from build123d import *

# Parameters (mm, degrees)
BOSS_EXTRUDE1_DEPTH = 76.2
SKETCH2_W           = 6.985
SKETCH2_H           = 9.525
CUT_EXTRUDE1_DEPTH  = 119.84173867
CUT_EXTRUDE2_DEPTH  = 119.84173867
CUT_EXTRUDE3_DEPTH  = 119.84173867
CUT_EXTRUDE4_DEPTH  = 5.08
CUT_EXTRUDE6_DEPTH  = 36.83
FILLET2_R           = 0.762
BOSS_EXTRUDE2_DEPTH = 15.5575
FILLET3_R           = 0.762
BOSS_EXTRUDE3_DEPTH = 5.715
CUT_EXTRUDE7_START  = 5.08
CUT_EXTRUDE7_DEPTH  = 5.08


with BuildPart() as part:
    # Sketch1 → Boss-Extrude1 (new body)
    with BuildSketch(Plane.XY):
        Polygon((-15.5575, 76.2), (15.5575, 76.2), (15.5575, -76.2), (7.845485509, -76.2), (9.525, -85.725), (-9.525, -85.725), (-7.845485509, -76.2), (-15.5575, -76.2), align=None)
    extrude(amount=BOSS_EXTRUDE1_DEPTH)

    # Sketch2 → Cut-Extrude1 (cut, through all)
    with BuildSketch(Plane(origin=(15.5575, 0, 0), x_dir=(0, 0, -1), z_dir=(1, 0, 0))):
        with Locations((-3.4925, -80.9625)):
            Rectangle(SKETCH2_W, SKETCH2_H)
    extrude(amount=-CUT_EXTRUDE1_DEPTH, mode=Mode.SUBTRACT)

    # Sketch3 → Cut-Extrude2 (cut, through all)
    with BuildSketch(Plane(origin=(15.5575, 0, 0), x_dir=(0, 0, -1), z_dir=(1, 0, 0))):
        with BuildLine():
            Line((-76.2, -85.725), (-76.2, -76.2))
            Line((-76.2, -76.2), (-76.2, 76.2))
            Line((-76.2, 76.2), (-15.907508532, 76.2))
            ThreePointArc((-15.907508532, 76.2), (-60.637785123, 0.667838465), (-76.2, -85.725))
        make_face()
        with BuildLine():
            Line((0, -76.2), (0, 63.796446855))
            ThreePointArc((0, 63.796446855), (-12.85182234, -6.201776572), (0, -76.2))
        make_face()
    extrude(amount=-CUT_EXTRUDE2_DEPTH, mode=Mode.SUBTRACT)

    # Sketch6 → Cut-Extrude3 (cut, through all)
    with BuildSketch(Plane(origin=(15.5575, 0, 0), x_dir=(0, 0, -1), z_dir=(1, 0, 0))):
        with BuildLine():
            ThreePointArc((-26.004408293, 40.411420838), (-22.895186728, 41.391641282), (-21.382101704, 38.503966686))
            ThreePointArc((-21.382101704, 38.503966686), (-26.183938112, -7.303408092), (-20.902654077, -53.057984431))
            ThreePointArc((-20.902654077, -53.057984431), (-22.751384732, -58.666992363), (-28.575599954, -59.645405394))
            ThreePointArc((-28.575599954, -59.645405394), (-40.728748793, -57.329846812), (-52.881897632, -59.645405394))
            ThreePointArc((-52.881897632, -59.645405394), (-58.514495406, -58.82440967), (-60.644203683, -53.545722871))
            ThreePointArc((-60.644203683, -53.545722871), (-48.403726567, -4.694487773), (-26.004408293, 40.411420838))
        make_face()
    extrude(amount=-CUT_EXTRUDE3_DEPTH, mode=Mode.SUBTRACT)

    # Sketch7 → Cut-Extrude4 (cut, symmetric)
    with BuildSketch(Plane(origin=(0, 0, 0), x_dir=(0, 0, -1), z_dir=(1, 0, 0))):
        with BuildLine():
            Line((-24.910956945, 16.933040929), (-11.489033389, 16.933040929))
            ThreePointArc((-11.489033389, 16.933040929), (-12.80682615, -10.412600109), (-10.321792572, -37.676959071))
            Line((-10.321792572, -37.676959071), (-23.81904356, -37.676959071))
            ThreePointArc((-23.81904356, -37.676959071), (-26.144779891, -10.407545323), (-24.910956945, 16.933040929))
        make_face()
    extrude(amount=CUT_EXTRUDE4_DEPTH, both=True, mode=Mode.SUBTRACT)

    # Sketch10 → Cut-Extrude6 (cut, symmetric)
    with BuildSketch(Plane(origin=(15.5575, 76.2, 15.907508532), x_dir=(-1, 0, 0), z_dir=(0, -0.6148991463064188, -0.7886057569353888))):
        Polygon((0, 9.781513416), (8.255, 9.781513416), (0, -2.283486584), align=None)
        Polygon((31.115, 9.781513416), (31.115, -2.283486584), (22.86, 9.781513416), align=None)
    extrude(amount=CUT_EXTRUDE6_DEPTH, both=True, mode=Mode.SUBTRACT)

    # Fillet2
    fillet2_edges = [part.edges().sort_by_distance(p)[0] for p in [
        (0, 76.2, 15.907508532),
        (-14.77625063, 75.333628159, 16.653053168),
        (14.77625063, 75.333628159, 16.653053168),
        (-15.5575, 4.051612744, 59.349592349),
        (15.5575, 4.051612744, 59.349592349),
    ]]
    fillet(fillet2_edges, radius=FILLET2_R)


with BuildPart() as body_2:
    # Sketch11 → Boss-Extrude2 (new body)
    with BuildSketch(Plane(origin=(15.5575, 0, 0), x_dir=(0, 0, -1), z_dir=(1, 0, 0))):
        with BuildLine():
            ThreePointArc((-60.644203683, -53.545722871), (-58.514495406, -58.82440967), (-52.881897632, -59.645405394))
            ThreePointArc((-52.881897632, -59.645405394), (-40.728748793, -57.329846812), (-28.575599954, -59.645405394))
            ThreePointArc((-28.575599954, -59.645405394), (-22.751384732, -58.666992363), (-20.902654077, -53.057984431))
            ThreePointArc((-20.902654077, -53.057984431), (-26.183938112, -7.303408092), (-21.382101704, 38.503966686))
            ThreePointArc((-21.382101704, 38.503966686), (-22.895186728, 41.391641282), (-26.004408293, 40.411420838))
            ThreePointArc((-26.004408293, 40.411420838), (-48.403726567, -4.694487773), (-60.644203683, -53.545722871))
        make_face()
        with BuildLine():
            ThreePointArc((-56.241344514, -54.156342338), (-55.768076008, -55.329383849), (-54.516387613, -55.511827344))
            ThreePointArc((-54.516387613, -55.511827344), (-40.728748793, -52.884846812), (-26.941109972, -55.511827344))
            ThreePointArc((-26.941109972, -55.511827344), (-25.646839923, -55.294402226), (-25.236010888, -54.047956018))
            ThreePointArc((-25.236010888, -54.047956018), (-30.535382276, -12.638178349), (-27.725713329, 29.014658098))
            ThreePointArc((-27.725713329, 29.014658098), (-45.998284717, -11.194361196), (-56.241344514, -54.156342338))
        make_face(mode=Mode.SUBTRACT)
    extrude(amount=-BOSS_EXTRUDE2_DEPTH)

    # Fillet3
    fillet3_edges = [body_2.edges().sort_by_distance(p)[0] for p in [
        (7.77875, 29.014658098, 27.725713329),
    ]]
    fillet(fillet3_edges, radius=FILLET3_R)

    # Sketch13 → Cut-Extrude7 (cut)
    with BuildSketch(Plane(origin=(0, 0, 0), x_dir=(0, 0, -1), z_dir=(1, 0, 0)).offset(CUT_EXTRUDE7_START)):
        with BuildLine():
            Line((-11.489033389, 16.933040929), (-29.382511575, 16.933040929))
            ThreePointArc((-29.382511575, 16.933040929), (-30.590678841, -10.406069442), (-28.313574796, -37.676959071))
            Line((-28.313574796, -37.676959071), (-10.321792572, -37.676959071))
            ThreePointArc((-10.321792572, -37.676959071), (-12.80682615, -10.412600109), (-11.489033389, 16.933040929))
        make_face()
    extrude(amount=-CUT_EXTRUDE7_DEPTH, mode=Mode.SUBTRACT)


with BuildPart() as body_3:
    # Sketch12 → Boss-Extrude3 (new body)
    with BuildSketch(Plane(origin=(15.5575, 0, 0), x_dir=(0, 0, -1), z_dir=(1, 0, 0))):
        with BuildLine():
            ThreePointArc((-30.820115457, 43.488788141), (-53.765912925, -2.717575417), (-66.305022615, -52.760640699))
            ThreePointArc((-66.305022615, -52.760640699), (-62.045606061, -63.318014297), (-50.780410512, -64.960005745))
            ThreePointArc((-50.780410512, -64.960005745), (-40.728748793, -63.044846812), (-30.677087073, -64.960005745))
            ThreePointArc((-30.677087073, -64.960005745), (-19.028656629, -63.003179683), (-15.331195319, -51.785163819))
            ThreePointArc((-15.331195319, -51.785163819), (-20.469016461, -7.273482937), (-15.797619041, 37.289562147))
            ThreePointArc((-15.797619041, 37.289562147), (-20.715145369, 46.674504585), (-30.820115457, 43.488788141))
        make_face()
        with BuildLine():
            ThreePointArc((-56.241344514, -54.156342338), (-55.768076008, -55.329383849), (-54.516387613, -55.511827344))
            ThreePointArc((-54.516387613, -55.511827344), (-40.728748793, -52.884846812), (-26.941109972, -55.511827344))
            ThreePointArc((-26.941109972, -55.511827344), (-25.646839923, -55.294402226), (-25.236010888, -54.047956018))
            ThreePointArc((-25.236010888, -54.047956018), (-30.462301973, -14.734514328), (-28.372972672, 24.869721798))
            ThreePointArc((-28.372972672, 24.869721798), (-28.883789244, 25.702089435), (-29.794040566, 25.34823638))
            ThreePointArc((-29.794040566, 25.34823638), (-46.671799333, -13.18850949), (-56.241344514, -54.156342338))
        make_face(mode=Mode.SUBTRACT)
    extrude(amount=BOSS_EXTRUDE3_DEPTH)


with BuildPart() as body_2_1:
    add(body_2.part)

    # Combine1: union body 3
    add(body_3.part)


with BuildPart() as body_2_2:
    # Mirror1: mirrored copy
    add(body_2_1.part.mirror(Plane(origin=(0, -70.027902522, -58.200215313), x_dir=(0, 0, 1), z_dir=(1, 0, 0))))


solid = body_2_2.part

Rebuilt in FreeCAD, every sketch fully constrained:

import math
import FreeCAD as App
import Part
import Sketcher
Q = App.Units.Quantity


def edges_at(feature, points):
    """Names of the edges that pass closest to the given points."""
    edges = feature.Shape.Edges
    near = lambda p: min(range(len(edges)), key=lambda i: edges[i].distToShape(Part.Vertex(*p))[0])
    return sorted({f"Edge{near(p) + 1}" for p in points})


def add_polygon(sketch, points):
    """Adds a closed chain of lines whose ends are joined by coincident constraints."""
    first, n = sketch.GeometryCount, len(points)
    for a, b in zip(points, points[1:] + points[:1]):
        sketch.addGeometry(Part.LineSegment(App.Vector(*a, 0), App.Vector(*b, 0)), False)
    for i in range(n):
        sketch.addConstraint(Sketcher.Constraint("Coincident", first + i, 2, first + (i + 1) % n, 1))

doc = App.newDocument("Part")
params = doc.addObject("Spreadsheet::Sheet", "Params")
for row, (alias, value) in enumerate([
    ("sketch1_height", "6 in"),
    ("sketch1_width", "0.75 in"),
    ("sketch1_width2", "1.225 in"),
    ("pad1_length", "3 in"),
    ("sketch2_width", "0.375 in"),
    ("sketch2_height", "0.275 in"),
    ("sketch3_width", "6.375 in"),
    ("sketch4_radius", "0.1 in"),
    ("sketch4_radius2", "0.225 in"),
    ("pocket4_length", "0.4 in"),
    ("sketch6_width", "0.325 in"),
    ("sketch6_height", "0.475 in"),
    ("pocket5_length", "2.9 in"),
    ("fillet_radius", "0.03 in"),
    ("sketch7_radius", "0.1 in"),
    ("sketch7_radius2", "0.05 in"),
    ("sketch7_radius3", "0.225 in"),
    ("pad2_length", "0.6125 in"),
    ("fillet2_radius", "0.03 in"),
    ("pocket6_length", "0.2 in"),
    ("sketch9_radius", "0.45 in"),
    ("sketch9_radius2", "0.05 in"),
    ("sketch9_radius3", "0.03 in"),
    ("sketch9_radius4", "0.325 in"),
    ("pad3_length", "0.225 in"),
], start=1):
    params.set(f"A{row}", alias)
    params.set(f"B{row}", "=" + value)
    params.setAlias(f"B{row}", alias)

body = doc.addObject("PartDesign::Body", "Body")

# Sketch on XY plane
sketch1 = doc.addObject("Sketcher::SketchObject", "Sketch")
body.addObject(sketch1)
sketch1.AttachmentSupport = (doc.XY_Plane, [""])
sketch1.MapMode = "FlatFace"
add_polygon(sketch1, [(15.5575, 76.2), (-15.5575, 76.2), (-15.5575, -76.2), (-7.845486, -76.2), (-9.525, -85.725), (9.525, -85.725), (7.845486, -76.2), (15.5575, -76.2)])  # lines 0-7
sketch1.addConstraint(Sketcher.Constraint("Horizontal", 0))
sketch1.addConstraint(Sketcher.Constraint("Vertical", 1))
sketch1.addConstraint(Sketcher.Constraint("Horizontal", 2))
sketch1.addConstraint(Sketcher.Constraint("Horizontal", 4))
sketch1.addConstraint(Sketcher.Constraint("Horizontal", 6))
sketch1.addConstraint(Sketcher.Constraint("Vertical", 7))
sketch1.addConstraint(Sketcher.Constraint("Symmetric", 0, 2, 6, 2, -1, 1))
sketch1.addConstraint(Sketcher.Constraint("Symmetric", 2, 2, 5, 2, -2))
sketch1.addConstraint(Sketcher.Constraint("Equal", 3, 5))
sketch1.addConstraint(Sketcher.Constraint("DistanceY", 1, 2, 1, 1, Q("6 in")))
sketch1.addConstraint(Sketcher.Constraint("Angle", 3, Q("-100 deg")))
sketch1.addConstraint(Sketcher.Constraint("DistanceX", 4, 1, 4, 2, Q("0.75 in")))
sketch1.addConstraint(Sketcher.Constraint("DistanceX", 0, 2, 0, 1, Q("1.225 in")))
sketch1.addConstraint(Sketcher.Constraint("DistanceY", 3, 2, -1, 1, Q("3.375 in")))
sketch1.setExpression("Constraints[17]", "Params.sketch1_height")
sketch1.setExpression("Constraints[19]", "Params.sketch1_width")
sketch1.setExpression("Constraints[20]", "Params.sketch1_width2")
pad1 = doc.addObject("PartDesign::Pad", "Pad")
body.addObject(pad1)
pad1.Profile = sketch1
pad1.setExpression("Length", "Params.pad1_length")

# Sketch on YZ plane
sketch2 = doc.addObject("Sketcher::SketchObject", "Sketch001")
body.addObject(sketch2)
sketch2.AttachmentSupport = (doc.YZ_Plane, [""])
sketch2.MapMode = "FlatFace"
sketch2.AttachmentOffset = App.Placement(App.Vector(0, 0, 0.6125 * 25.4), App.Rotation())
add_polygon(sketch2, [(-76.2, 6.985), (-85.725, 6.985), (-85.725, 0), (-76.2, 0)])  # lines 0-3
sketch2.addConstraint(Sketcher.Constraint("Horizontal", 0))
sketch2.addConstraint(Sketcher.Constraint("Vertical", 1))
sketch2.addConstraint(Sketcher.Constraint("Horizontal", 2))
sketch2.addConstraint(Sketcher.Constraint("Vertical", 3))
sketch2.addConstraint(Sketcher.Constraint("PointOnObject", 1, 2, -1))
sketch2.addConstraint(Sketcher.Constraint("DistanceX", 2, 2, -1, 1, Q("3 in")))
sketch2.addConstraint(Sketcher.Constraint("DistanceX", 0, 2, 0, 1, Q("0.375 in")))
sketch2.addConstraint(Sketcher.Constraint("DistanceY", 1, 2, 1, 1, Q("0.275 in")))
sketch2.setExpression("Constraints[10]", "Params.sketch2_width")
sketch2.setExpression("Constraints[11]", "Params.sketch2_height")
pocket1 = doc.addObject("PartDesign::Pocket", "Pocket")
body.addObject(pocket1)
pocket1.Profile = sketch2
pocket1.Type = "ThroughAll"

# Sketch on YZ plane
sketch3 = doc.addObject("Sketcher::SketchObject", "Sketch002")
body.addObject(sketch3)
sketch3.AttachmentSupport = (doc.YZ_Plane, [""])
sketch3.MapMode = "FlatFace"
sketch3.AttachmentOffset = App.Placement(App.Vector(0, 0, 0.6125 * 25.4), App.Rotation())
sketch3.addGeometry(Part.LineSegment(App.Vector(76.2, 76.2, 0), App.Vector(-85.725, 76.2, 0)), False)
sketch3.addGeometry(Part.ArcOfCircle(Part.Circle(App.Vector(-85.725, -171.383815, 0), App.Vector(0, 0, 1), 247.583815), math.radians(49.154546), math.radians(90)), False)
sketch3.addGeometry(Part.LineSegment(App.Vector(76.2, 15.907509, 0), App.Vector(76.2, 76.2, 0)), False)
sketch3.addGeometry(Part.LineSegment(App.Vector(-76.2, 0, 0), App.Vector(63.796447, 0, 0)), False)
sketch3.addGeometry(Part.ArcOfCircle(Part.Circle(App.Vector(-6.201777, -184.198856, 0), App.Vector(0, 0, 1), 197.050678), math.radians(69.192486), math.radians(110.807514)), False)
sketch3.addConstraint(Sketcher.Constraint("Tangent", 0, 2, 1, 2))
sketch3.addConstraint(Sketcher.Constraint("Coincident", 1, 1, 2, 1))
sketch3.addConstraint(Sketcher.Constraint("Coincident", 2, 2, 0, 1))
sketch3.addConstraint(Sketcher.Constraint("Coincident", 3, 1, 4, 2))
sketch3.addConstraint(Sketcher.Constraint("Coincident", 4, 1, 3, 2))
sketch3.addConstraint(Sketcher.Constraint("Horizontal", 0))
sketch3.addConstraint(Sketcher.Constraint("Vertical", 2))
sketch3.addConstraint(Sketcher.Constraint("Horizontal", 3))
sketch3.addConstraint(Sketcher.Constraint("PointOnObject", 3, 1, -1))
sketch3.addConstraint(Sketcher.Constraint("DistanceY", -1, 1, 0, 2, Q("3 in")))
sketch3.addConstraint(Sketcher.Constraint("DistanceX", -1, 1, 1, 1, Q("3 in")))
sketch3.addConstraint(Sketcher.Constraint("DistanceX", 3, 1, -1, 1, Q("3 in")))
sketch3.addConstraint(Sketcher.Constraint("DistanceX", 0, 2, 0, 1, Q("6.375 in")))
sketch3.addConstraint(Sketcher.Constraint("Radius", 4, 197.050678))
sketch3.addConstraint(Sketcher.Constraint("Radius", 1, 247.583815))
sketch3.addConstraint(Sketcher.Constraint("DistanceX", 3, 1, 3, 2, 139.996447))
sketch3.setExpression("Constraints[12]", "Params.sketch3_width")
pocket2 = doc.addObject("PartDesign::Pocket", "Pocket001")
body.addObject(pocket2)
pocket2.Profile = sketch3
pocket2.Type = "ThroughAll"

# Sketch on YZ plane
sketch4 = doc.addObject("Sketcher::SketchObject", "Sketch003")
body.addObject(sketch4)
sketch4.AttachmentSupport = (doc.YZ_Plane, [""])
sketch4.MapMode = "FlatFace"
sketch4.AttachmentOffset = App.Placement(App.Vector(0, 0, 0.6125 * 25.4), App.Rotation())
sketch4.addGeometry(Part.ArcOfCircle(Part.Circle(App.Vector(39.043702, 23.864094, 0), App.Vector(0, 0, 1), 2.54), math.radians(-102.268561), math.radians(57.42032)), False)
sketch4.addGeometry(Part.ArcOfCircle(Part.Circle(App.Vector(-85.725, -171.383815, 0), App.Vector(0, 0, 1), 234.248815), math.radians(57.42032), math.radians(82.104184)), False)
sketch4.addGeometry(Part.ArcOfCircle(Part.Circle(App.Vector(-54.330805, 54.983385, 0), App.Vector(0, 0, 1), 5.715), math.radians(82.104184), math.radians(201.57472)), False)
sketch4.addGeometry(Part.ArcOfCircle(Part.Circle(App.Vector(-90.380368, 40.728749, 0), App.Vector(0, 0, 1), 33.050522), math.radians(-21.57472), math.radians(21.57472)), False)
sketch4.addGeometry(Part.ArcOfCircle(Part.Circle(App.Vector(-54.330805, 26.474113, 0), App.Vector(0, 0, 1), 5.715), math.radians(158.42528), math.radians(282.868593)), False)
sketch4.addGeometry(Part.ArcOfCircle(Part.Circle(App.Vector(-6.201777, -184.198856, 0), App.Vector(0, 0, 1), 210.385678), math.radians(77.731439), math.radians(102.868593)), False)
sketch4.addConstraint(Sketcher.Constraint("Tangent", 0, 2, 1, 1))
sketch4.addConstraint(Sketcher.Constraint("Tangent", 1, 2, 2, 1))
sketch4.addConstraint(Sketcher.Constraint("Tangent", 2, 2, 3, 2))
sketch4.addConstraint(Sketcher.Constraint("Tangent", 3, 1, 4, 1))
sketch4.addConstraint(Sketcher.Constraint("Tangent", 4, 2, 5, 2))
sketch4.addConstraint(Sketcher.Constraint("Tangent", 5, 1, 0, 1))
sketch4.addConstraint(Sketcher.Constraint("Equal", 2, 4))
sketch4.addConstraint(Sketcher.Constraint("Vertical", 2, 3, 4, 3))
sketch4.addConstraint(Sketcher.Constraint("Radius", 0, Q("0.1 in")))
sketch4.addConstraint(Sketcher.Constraint("Radius", 2, Q("0.225 in")))
sketch4.addConstraint(Sketcher.Constraint("DistanceX", 1, 3, -1, 1, Q("3.375 in")))
sketch4.addConstraint(Sketcher.Constraint("Radius", 3, 33.050522))
sketch4.addConstraint(Sketcher.Constraint("Radius", 5, 210.385678))
sketch4.addConstraint(Sketcher.Constraint("DistanceY", -1, 1, 2, 3, Q("2.1647002 in")))
sketch4.addConstraint(Sketcher.Constraint("Radius", 1, 234.248815))
sketch4.addConstraint(Sketcher.Constraint("DistanceX", 1, 2, 0, 2, Q("3.6991001 in")))
sketch4.addConstraint(Sketcher.Constraint("DistanceY", -1, 1, 3, 1, 28.5756))
sketch4.addConstraint(Sketcher.Constraint("DistanceY", -1, 1, 5, 1, 21.382102))
sketch4.setExpression("Constraints[8]", "Params.sketch4_radius")
sketch4.setExpression("Constraints[9]", "Params.sketch4_radius2")
pocket3 = doc.addObject("PartDesign::Pocket", "Pocket002")
body.addObject(pocket3)
pocket3.Profile = sketch4
pocket3.Type = "ThroughAll"

# Sketch on YZ plane
sketch5 = doc.addObject("Sketcher::SketchObject", "Sketch004")
body.addObject(sketch5)
sketch5.AttachmentSupport = (doc.YZ_Plane, [""])
sketch5.MapMode = "FlatFace"
sketch5.addGeometry(Part.LineSegment(App.Vector(16.933041, 11.489033, 0), App.Vector(16.933041, 24.910957, 0)), False)
sketch5.addGeometry(Part.ArcOfCircle(Part.Circle(App.Vector(-6.201777, -184.198856, 0), App.Vector(0, 0, 1), 210.385678), math.radians(83.686769), math.radians(98.604156)), False)
sketch5.addGeometry(Part.LineSegment(App.Vector(-37.676959, 23.819044, 0), App.Vector(-37.676959, 10.321793, 0)), False)
sketch5.addGeometry(Part.ArcOfCircle(Part.Circle(App.Vector(-6.201777, -184.198856, 0), App.Vector(0, 0, 1), 197.050678), math.radians(83.257615), math.radians(99.191307)), False)
sketch5.addConstraint(Sketcher.Constraint("Coincident", 0, 2, 1, 1))
sketch5.addConstraint(Sketcher.Constraint("Coincident", 1, 2, 2, 1))
sketch5.addConstraint(Sketcher.Constraint("Coincident", 2, 2, 3, 2))
sketch5.addConstraint(Sketcher.Constraint("Coincident", 3, 1, 0, 1))
sketch5.addConstraint(Sketcher.Constraint("Vertical", 0))
sketch5.addConstraint(Sketcher.Constraint("Vertical", 2))
sketch5.addConstraint(Sketcher.Constraint("Coincident", 3, 3, 1, 3))
sketch5.addConstraint(Sketcher.Constraint("DistanceX", 1, 2, 0, 2, Q("2.15 in")))
sketch5.addConstraint(Sketcher.Constraint("Radius", 1, 210.385678))
sketch5.addConstraint(Sketcher.Constraint("Radius", 3, 197.050678))
sketch5.addConstraint(Sketcher.Constraint("DistanceY", 2, 2, 2, 1, 13.497251))
sketch5.addConstraint(Sketcher.Constraint("DistanceX", -1, 1, 0, 2, 16.933041))
sketch5.addConstraint(Sketcher.Constraint("DistanceY", 1, 3, -1, 1, 184.198856))
pocket4 = doc.addObject("PartDesign::Pocket", "Pocket003")
body.addObject(pocket4)
pocket4.Profile = sketch5
pocket4.setExpression("Length", "Params.pocket4_length")
pocket4.Midplane = True

# Sketch on an angled plane
sketch6 = doc.addObject("Sketcher::SketchObject", "Sketch005")
body.addObject(sketch6)
sketch6.Placement = App.Placement(App.Vector(15.5575, 76.2, 15.907509), App.Rotation(App.Vector(-1, 0, 0), App.Vector(0, 0.788605757, -0.614899146), App.Vector(0, -0.614899146, -0.788605757), "ZXY"))
add_polygon(sketch6, [(8.255, 9.781513), (0, 9.781513), (0, -2.283487)])  # lines 0-2
add_polygon(sketch6, [(31.115, -2.283487), (31.115, 9.781513), (22.86, 9.781513)])  # lines 3-5
sketch6.addConstraint(Sketcher.Constraint("Horizontal", 0))
sketch6.addConstraint(Sketcher.Constraint("Vertical", 1))
sketch6.addConstraint(Sketcher.Constraint("Vertical", 3))
sketch6.addConstraint(Sketcher.Constraint("Horizontal", 4))
sketch6.addConstraint(Sketcher.Constraint("PointOnObject", 0, 2, -2))
sketch6.addConstraint(Sketcher.Constraint("Horizontal", 2, 2, 3, 2))
sketch6.addConstraint(Sketcher.Constraint("Horizontal", 1, 2, 5, 2))
sketch6.addConstraint(Sketcher.Constraint("Equal", 0, 4))
sketch6.addConstraint(Sketcher.Constraint("DistanceX", -1, 1, 4, 2, Q("0.9 in")))
sketch6.addConstraint(Sketcher.Constraint("DistanceX", 0, 2, 0, 1, Q("0.325 in")))
sketch6.addConstraint(Sketcher.Constraint("DistanceY", 1, 2, 1, 1, Q("0.475 in")))
sketch6.addConstraint(Sketcher.Constraint("DistanceY", -1, 1, 0, 2, 9.781513))
sketch6.setExpression("Constraints[15]", "Params.sketch6_width")
sketch6.setExpression("Constraints[16]", "Params.sketch6_height")
pocket5 = doc.addObject("PartDesign::Pocket", "Pocket004")
body.addObject(pocket5)
pocket5.Profile = sketch6
pocket5.setExpression("Length", "Params.pocket5_length")
pocket5.Midplane = True
doc.recompute()

fillet = doc.addObject("PartDesign::Fillet", "Fillet")
body.addObject(fillet)
fillet.Base = (pocket5, edges_at(pocket5, [
    (0, 76.2, 15.908),
    (-14.776, 75.334, 16.653),
    (14.776, 75.334, 16.653),
    (-15.557, 4.052, 59.35),
    (15.557, 4.052, 59.35),
]))
fillet.setExpression("Radius", "Params.fillet_radius")
body2 = doc.addObject("PartDesign::Body", "Body001")

# Sketch on YZ plane
sketch7 = doc.addObject("Sketcher::SketchObject", "Sketch006")
body2.addObject(sketch7)
sketch7.AttachmentSupport = (doc.getObject("YZ_Plane001"), [""])
sketch7.MapMode = "FlatFace"
sketch7.AttachmentOffset = App.Placement(App.Vector(0, 0, 0.6125 * 25.4), App.Rotation())
sketch7.addGeometry(Part.ArcOfCircle(Part.Circle(App.Vector(-54.330805, 54.983385, 0), App.Vector(0, 0, 1), 5.715), math.radians(82.104184), math.radians(201.57472)), False)
sketch7.addGeometry(Part.ArcOfCircle(Part.Circle(App.Vector(-90.380368, 40.728749, 0), App.Vector(0, 0, 1), 33.050522), math.radians(-21.57472), math.radians(21.57472)), False)
sketch7.addGeometry(Part.ArcOfCircle(Part.Circle(App.Vector(-54.330805, 26.474113, 0), App.Vector(0, 0, 1), 5.715), math.radians(158.42528), math.radians(282.868593)), False)
sketch7.addGeometry(Part.ArcOfCircle(Part.Circle(App.Vector(-6.201777, -184.198856, 0), App.Vector(0, 0, 1), 210.385678), math.radians(77.731439), math.radians(102.868593)), False)
sketch7.addGeometry(Part.ArcOfCircle(Part.Circle(App.Vector(39.043702, 23.864094, 0), App.Vector(0, 0, 1), 2.54), math.radians(-102.268561), math.radians(57.42032)), False)
sketch7.addGeometry(Part.ArcOfCircle(Part.Circle(App.Vector(-85.725, -171.383815, 0), App.Vector(0, 0, 1), 234.248815), math.radians(57.42032), math.radians(82.104184)), False)
sketch7.addGeometry(Part.ArcOfCircle(Part.Circle(App.Vector(-54.330805, 54.983385, 0), App.Vector(0, 0, 1), 1.27), math.radians(82.104184), math.radians(201.57472)), False)
sketch7.addGeometry(Part.ArcOfCircle(Part.Circle(App.Vector(-85.725, -171.383815, 0), App.Vector(0, 0, 1), 229.803815), math.radians(60.0467), math.radians(82.104184)), False)
sketch7.addGeometry(Part.ArcOfCircle(Part.Circle(App.Vector(-6.201777, -184.198856, 0), App.Vector(0, 0, 1), 214.830678), math.radians(80.565123), math.radians(102.868593)), False)
sketch7.addGeometry(Part.ArcOfCircle(Part.Circle(App.Vector(-54.330805, 26.474113, 0), App.Vector(0, 0, 1), 1.27), math.radians(158.42528), math.radians(282.868593)), False)
sketch7.addGeometry(Part.ArcOfCircle(Part.Circle(App.Vector(-90.380368, 40.728749, 0), App.Vector(0, 0, 1), 37.495522), math.radians(-21.57472), math.radians(21.57472)), False)
sketch7.addConstraint(Sketcher.Constraint("Tangent", 0, 2, 1, 2))
sketch7.addConstraint(Sketcher.Constraint("Tangent", 1, 1, 2, 1))
sketch7.addConstraint(Sketcher.Constraint("Tangent", 2, 2, 3, 2))
sketch7.addConstraint(Sketcher.Constraint("Tangent", 3, 1, 4, 1))
sketch7.addConstraint(Sketcher.Constraint("Tangent", 4, 2, 5, 1))
sketch7.addConstraint(Sketcher.Constraint("Tangent", 5, 2, 0, 1))
sketch7.addConstraint(Sketcher.Constraint("Tangent", 6, 1, 7, 2))
sketch7.addConstraint(Sketcher.Constraint("Coincident", 7, 1, 8, 1))
sketch7.addConstraint(Sketcher.Constraint("Tangent", 8, 2, 9, 2))
sketch7.addConstraint(Sketcher.Constraint("Tangent", 9, 1, 10, 1))
sketch7.addConstraint(Sketcher.Constraint("Tangent", 10, 2, 6, 2))
sketch7.addConstraint(Sketcher.Constraint("Coincident", 6, 3, 0, 3))
sketch7.addConstraint(Sketcher.Constraint("Coincident", 7, 3, 5, 3))
sketch7.addConstraint(Sketcher.Constraint("Coincident", 8, 3, 3, 3))
sketch7.addConstraint(Sketcher.Constraint("Coincident", 9, 3, 2, 3))
sketch7.addConstraint(Sketcher.Constraint("Coincident", 10, 3, 1, 3))
sketch7.addConstraint(Sketcher.Constraint("Equal", 0, 2))
sketch7.addConstraint(Sketcher.Constraint("Vertical", 0, 3, 2, 3))
sketch7.addConstraint(Sketcher.Constraint("Radius", 4, Q("0.1 in")))
sketch7.addConstraint(Sketcher.Constraint("Radius", 6, Q("0.05 in")))
sketch7.addConstraint(Sketcher.Constraint("Radius", 0, Q("0.225 in")))
sketch7.addConstraint(Sketcher.Constraint("DistanceX", 5, 3, -1, 1, Q("3.375 in")))
sketch7.addConstraint(Sketcher.Constraint("Radius", 1, 33.050522))
sketch7.addConstraint(Sketcher.Constraint("Radius", 3, 210.385678))
sketch7.addConstraint(Sketcher.Constraint("DistanceY", -1, 1, 0, 3, Q("2.1647002 in")))
sketch7.addConstraint(Sketcher.Constraint("Radius", 5, 234.248815))
sketch7.addConstraint(Sketcher.Constraint("DistanceY", -1, 1, 1, 1, 28.5756))
sketch7.addConstraint(Sketcher.Constraint("DistanceY", -1, 1, 3, 1, 21.382102))
sketch7.addConstraint(Sketcher.Constraint("DistanceY", 5, 3, 0, 3, 226.3672))
sketch7.setExpression("Constraints[18]", "Params.sketch7_radius")
sketch7.setExpression("Constraints[19]", "Params.sketch7_radius2")
sketch7.setExpression("Constraints[20]", "Params.sketch7_radius3")
pad2 = doc.addObject("PartDesign::Pad", "Pad001")
body2.addObject(pad2)
pad2.Profile = sketch7
pad2.setExpression("Length", "Params.pad2_length")
pad2.Reversed = True
doc.recompute()

fillet2 = doc.addObject("PartDesign::Fillet", "Fillet001")
body2.addObject(fillet2)
fillet2.Base = (pad2, edges_at(pad2, [(7.779, 29.015, 27.726)]))
fillet2.setExpression("Radius", "Params.fillet2_radius")

# Sketch on YZ plane
sketch8 = doc.addObject("Sketcher::SketchObject", "Sketch007")
body2.addObject(sketch8)
sketch8.AttachmentSupport = (doc.getObject("YZ_Plane001"), [""])
sketch8.MapMode = "FlatFace"
sketch8.AttachmentOffset = App.Placement(App.Vector(0, 0, 0.2 * 25.4), App.Rotation())
sketch8.addGeometry(Part.LineSegment(App.Vector(16.933041, 11.489033, 0), App.Vector(16.933041, 29.382512, 0)), False)
sketch8.addGeometry(Part.ArcOfCircle(Part.Circle(App.Vector(-6.201777, -184.198856, 0), App.Vector(0, 0, 1), 214.830678), math.radians(83.817909), math.radians(98.424821)), False)
sketch8.addGeometry(Part.LineSegment(App.Vector(-37.676959, 28.313575, 0), App.Vector(-37.676959, 10.321793, 0)), False)
sketch8.addGeometry(Part.ArcOfCircle(Part.Circle(App.Vector(-6.201777, -184.198856, 0), App.Vector(0, 0, 1), 197.050678), math.radians(83.257615), math.radians(99.191307)), False)
sketch8.addConstraint(Sketcher.Constraint("Coincident", 0, 2, 1, 1))
sketch8.addConstraint(Sketcher.Constraint("Coincident", 1, 2, 2, 1))
sketch8.addConstraint(Sketcher.Constraint("Coincident", 2, 2, 3, 2))
sketch8.addConstraint(Sketcher.Constraint("Coincident", 3, 1, 0, 1))
sketch8.addConstraint(Sketcher.Constraint("Vertical", 0))
sketch8.addConstraint(Sketcher.Constraint("Vertical", 2))
sketch8.addConstraint(Sketcher.Constraint("Coincident", 3, 3, 1, 3))
sketch8.addConstraint(Sketcher.Constraint("DistanceX", 1, 2, 0, 2, Q("2.15 in")))
sketch8.addConstraint(Sketcher.Constraint("Radius", 1, 214.830678))
sketch8.addConstraint(Sketcher.Constraint("Radius", 3, 197.050678))
sketch8.addConstraint(Sketcher.Constraint("DistanceY", 0, 1, 0, 2, 17.893478))
sketch8.addConstraint(Sketcher.Constraint("DistanceX", -1, 1, 0, 2, 16.933041))
sketch8.addConstraint(Sketcher.Constraint("DistanceY", -1, 1, 0, 2, 29.382512))
pocket6 = doc.addObject("PartDesign::Pocket", "Pocket005")
body2.addObject(pocket6)
pocket6.Profile = sketch8
pocket6.setExpression("Length", "Params.pocket6_length")
body3 = doc.addObject("PartDesign::Body", "Body002")

# Sketch on YZ plane
sketch9 = doc.addObject("Sketcher::SketchObject", "Sketch008")
body3.addObject(sketch9)
sketch9.AttachmentSupport = (doc.getObject("YZ_Plane002"), [""])
sketch9.MapMode = "FlatFace"
sketch9.AttachmentOffset = App.Placement(App.Vector(0, 0, 0.6125 * 25.4), App.Rotation())
sketch9.addGeometry(Part.ArcOfCircle(Part.Circle(App.Vector(-85.725, -171.383815, 0), App.Vector(0, 0, 1), 239.963815), math.radians(57.42032), math.radians(82.104184)), False)
sketch9.addGeometry(Part.ArcOfCircle(Part.Circle(App.Vector(-54.330805, 54.983385, 0), App.Vector(0, 0, 1), 11.43), math.radians(82.104184), math.radians(201.57472)), False)
sketch9.addGeometry(Part.ArcOfCircle(Part.Circle(App.Vector(-90.380368, 40.728749, 0), App.Vector(0, 0, 1), 27.335522), math.radians(-21.57472), math.radians(21.57472)), False)
sketch9.addGeometry(Part.ArcOfCircle(Part.Circle(App.Vector(-54.330805, 26.474113, 0), App.Vector(0, 0, 1), 11.43), math.radians(158.42528), math.radians(282.868593)), False)
sketch9.addGeometry(Part.ArcOfCircle(Part.Circle(App.Vector(-6.201777, -184.198856, 0), App.Vector(0, 0, 1), 204.670678), math.radians(77.731439), math.radians(102.868593)), False)
sketch9.addGeometry(Part.ArcOfCircle(Part.Circle(App.Vector(39.043702, 23.864094, 0), App.Vector(0, 0, 1), 8.255), math.radians(-102.268561), math.radians(57.42032)), False)
sketch9.addGeometry(Part.ArcOfCircle(Part.Circle(App.Vector(-54.330805, 54.983385, 0), App.Vector(0, 0, 1), 1.27), math.radians(82.104184), math.radians(201.57472)), False)
sketch9.addGeometry(Part.ArcOfCircle(Part.Circle(App.Vector(-85.725, -171.383815, 0), App.Vector(0, 0, 1), 229.803815), math.radians(61.096269), math.radians(82.104184)), False)
sketch9.addGeometry(Part.ArcOfCircle(Part.Circle(App.Vector(24.979932, 29.126961, 0), App.Vector(0, 0, 1), 0.762), math.radians(-98.315999), math.radians(61.096269)), False)
sketch9.addGeometry(Part.ArcOfCircle(Part.Circle(App.Vector(-6.201777, -184.198856, 0), App.Vector(0, 0, 1), 214.830678), math.radians(81.684001), math.radians(102.868593)), False)
sketch9.addGeometry(Part.ArcOfCircle(Part.Circle(App.Vector(-54.330805, 26.474113, 0), App.Vector(0, 0, 1), 1.27), math.radians(158.42528), math.radians(282.868593)), False)
sketch9.addGeometry(Part.ArcOfCircle(Part.Circle(App.Vector(-90.380368, 40.728749, 0), App.Vector(0, 0, 1), 37.495522), math.radians(-21.57472), math.radians(21.57472)), False)
sketch9.addConstraint(Sketcher.Constraint("Tangent", 0, 2, 1, 1))
sketch9.addConstraint(Sketcher.Constraint("Tangent", 1, 2, 2, 2))
sketch9.addConstraint(Sketcher.Constraint("Tangent", 2, 1, 3, 1))
sketch9.addConstraint(Sketcher.Constraint("Tangent", 3, 2, 4, 2))
sketch9.addConstraint(Sketcher.Constraint("Tangent", 4, 1, 5, 1))
sketch9.addConstraint(Sketcher.Constraint("Tangent", 5, 2, 0, 1))
sketch9.addConstraint(Sketcher.Constraint("Tangent", 6, 1, 7, 2))
sketch9.addConstraint(Sketcher.Constraint("Tangent", 7, 1, 8, 2))
sketch9.addConstraint(Sketcher.Constraint("Tangent", 8, 1, 9, 1))
sketch9.addConstraint(Sketcher.Constraint("Tangent", 9, 2, 10, 2))
sketch9.addConstraint(Sketcher.Constraint("Tangent", 10, 1, 11, 1))
sketch9.addConstraint(Sketcher.Constraint("Tangent", 11, 2, 6, 2))
sketch9.addConstraint(Sketcher.Constraint("Coincident", 6, 3, 1, 3))
sketch9.addConstraint(Sketcher.Constraint("Coincident", 7, 3, 0, 3))
sketch9.addConstraint(Sketcher.Constraint("Coincident", 9, 3, 4, 3))
sketch9.addConstraint(Sketcher.Constraint("Coincident", 10, 3, 3, 3))
sketch9.addConstraint(Sketcher.Constraint("Coincident", 11, 3, 2, 3))
sketch9.addConstraint(Sketcher.Constraint("Equal", 1, 3))
sketch9.addConstraint(Sketcher.Constraint("Vertical", 1, 3, 3, 3))
sketch9.addConstraint(Sketcher.Constraint("Radius", 1, Q("0.45 in")))
sketch9.addConstraint(Sketcher.Constraint("Radius", 6, Q("0.05 in")))
sketch9.addConstraint(Sketcher.Constraint("Radius", 8, Q("0.03 in")))
sketch9.addConstraint(Sketcher.Constraint("Radius", 5, Q("0.325 in")))
sketch9.addConstraint(Sketcher.Constraint("DistanceX", 0, 3, -1, 1, Q("3.375 in")))
sketch9.addConstraint(Sketcher.Constraint("Radius", 2, 27.335522))
sketch9.addConstraint(Sketcher.Constraint("Radius", 4, 204.670678))
sketch9.addConstraint(Sketcher.Constraint("DistanceY", -1, 1, 1, 3, Q("2.1647002 in")))
sketch9.addConstraint(Sketcher.Constraint("Radius", 0, 239.963815))
sketch9.addConstraint(Sketcher.Constraint("DistanceY", 3, 2, 5, 2, Q("0.6098 in")))
sketch9.addConstraint(Sketcher.Constraint("DistanceY", 0, 3, 1, 3, 226.3672))
sketch9.addConstraint(Sketcher.Constraint("DistanceX", 2, 3, 8, 3, 115.3603))
sketch9.setExpression("Constraints[19]", "Params.sketch9_radius")
sketch9.setExpression("Constraints[20]", "Params.sketch9_radius2")
sketch9.setExpression("Constraints[21]", "Params.sketch9_radius3")
sketch9.setExpression("Constraints[22]", "Params.sketch9_radius4")
pad3 = doc.addObject("PartDesign::Pad", "Pad002")
body3.addObject(pad3)
pad3.Profile = sketch9
pad3.setExpression("Length", "Params.pad3_length")
doc.recompute()

boolean = doc.addObject("PartDesign::Boolean", "Boolean")
body2.addObject(boolean)
boolean.Type = "Fuse"
boolean.addObjects([body3])
body4 = doc.addObject("PartDesign::Body", "Body003")
doc.recompute()

mirroring = doc.addObject("Part::Mirroring", "Mirroring")
mirroring.Source = body2
mirroring.Base = App.Vector(0, -70.027903, -58.200215)
mirroring.Normal = App.Vector(1, 0, 0)
body4.BaseFeature = mirroring
doc.recompute()
body.Visibility = False
body2.Visibility = False
mirroring.Visibility = False

doc.recompute()
